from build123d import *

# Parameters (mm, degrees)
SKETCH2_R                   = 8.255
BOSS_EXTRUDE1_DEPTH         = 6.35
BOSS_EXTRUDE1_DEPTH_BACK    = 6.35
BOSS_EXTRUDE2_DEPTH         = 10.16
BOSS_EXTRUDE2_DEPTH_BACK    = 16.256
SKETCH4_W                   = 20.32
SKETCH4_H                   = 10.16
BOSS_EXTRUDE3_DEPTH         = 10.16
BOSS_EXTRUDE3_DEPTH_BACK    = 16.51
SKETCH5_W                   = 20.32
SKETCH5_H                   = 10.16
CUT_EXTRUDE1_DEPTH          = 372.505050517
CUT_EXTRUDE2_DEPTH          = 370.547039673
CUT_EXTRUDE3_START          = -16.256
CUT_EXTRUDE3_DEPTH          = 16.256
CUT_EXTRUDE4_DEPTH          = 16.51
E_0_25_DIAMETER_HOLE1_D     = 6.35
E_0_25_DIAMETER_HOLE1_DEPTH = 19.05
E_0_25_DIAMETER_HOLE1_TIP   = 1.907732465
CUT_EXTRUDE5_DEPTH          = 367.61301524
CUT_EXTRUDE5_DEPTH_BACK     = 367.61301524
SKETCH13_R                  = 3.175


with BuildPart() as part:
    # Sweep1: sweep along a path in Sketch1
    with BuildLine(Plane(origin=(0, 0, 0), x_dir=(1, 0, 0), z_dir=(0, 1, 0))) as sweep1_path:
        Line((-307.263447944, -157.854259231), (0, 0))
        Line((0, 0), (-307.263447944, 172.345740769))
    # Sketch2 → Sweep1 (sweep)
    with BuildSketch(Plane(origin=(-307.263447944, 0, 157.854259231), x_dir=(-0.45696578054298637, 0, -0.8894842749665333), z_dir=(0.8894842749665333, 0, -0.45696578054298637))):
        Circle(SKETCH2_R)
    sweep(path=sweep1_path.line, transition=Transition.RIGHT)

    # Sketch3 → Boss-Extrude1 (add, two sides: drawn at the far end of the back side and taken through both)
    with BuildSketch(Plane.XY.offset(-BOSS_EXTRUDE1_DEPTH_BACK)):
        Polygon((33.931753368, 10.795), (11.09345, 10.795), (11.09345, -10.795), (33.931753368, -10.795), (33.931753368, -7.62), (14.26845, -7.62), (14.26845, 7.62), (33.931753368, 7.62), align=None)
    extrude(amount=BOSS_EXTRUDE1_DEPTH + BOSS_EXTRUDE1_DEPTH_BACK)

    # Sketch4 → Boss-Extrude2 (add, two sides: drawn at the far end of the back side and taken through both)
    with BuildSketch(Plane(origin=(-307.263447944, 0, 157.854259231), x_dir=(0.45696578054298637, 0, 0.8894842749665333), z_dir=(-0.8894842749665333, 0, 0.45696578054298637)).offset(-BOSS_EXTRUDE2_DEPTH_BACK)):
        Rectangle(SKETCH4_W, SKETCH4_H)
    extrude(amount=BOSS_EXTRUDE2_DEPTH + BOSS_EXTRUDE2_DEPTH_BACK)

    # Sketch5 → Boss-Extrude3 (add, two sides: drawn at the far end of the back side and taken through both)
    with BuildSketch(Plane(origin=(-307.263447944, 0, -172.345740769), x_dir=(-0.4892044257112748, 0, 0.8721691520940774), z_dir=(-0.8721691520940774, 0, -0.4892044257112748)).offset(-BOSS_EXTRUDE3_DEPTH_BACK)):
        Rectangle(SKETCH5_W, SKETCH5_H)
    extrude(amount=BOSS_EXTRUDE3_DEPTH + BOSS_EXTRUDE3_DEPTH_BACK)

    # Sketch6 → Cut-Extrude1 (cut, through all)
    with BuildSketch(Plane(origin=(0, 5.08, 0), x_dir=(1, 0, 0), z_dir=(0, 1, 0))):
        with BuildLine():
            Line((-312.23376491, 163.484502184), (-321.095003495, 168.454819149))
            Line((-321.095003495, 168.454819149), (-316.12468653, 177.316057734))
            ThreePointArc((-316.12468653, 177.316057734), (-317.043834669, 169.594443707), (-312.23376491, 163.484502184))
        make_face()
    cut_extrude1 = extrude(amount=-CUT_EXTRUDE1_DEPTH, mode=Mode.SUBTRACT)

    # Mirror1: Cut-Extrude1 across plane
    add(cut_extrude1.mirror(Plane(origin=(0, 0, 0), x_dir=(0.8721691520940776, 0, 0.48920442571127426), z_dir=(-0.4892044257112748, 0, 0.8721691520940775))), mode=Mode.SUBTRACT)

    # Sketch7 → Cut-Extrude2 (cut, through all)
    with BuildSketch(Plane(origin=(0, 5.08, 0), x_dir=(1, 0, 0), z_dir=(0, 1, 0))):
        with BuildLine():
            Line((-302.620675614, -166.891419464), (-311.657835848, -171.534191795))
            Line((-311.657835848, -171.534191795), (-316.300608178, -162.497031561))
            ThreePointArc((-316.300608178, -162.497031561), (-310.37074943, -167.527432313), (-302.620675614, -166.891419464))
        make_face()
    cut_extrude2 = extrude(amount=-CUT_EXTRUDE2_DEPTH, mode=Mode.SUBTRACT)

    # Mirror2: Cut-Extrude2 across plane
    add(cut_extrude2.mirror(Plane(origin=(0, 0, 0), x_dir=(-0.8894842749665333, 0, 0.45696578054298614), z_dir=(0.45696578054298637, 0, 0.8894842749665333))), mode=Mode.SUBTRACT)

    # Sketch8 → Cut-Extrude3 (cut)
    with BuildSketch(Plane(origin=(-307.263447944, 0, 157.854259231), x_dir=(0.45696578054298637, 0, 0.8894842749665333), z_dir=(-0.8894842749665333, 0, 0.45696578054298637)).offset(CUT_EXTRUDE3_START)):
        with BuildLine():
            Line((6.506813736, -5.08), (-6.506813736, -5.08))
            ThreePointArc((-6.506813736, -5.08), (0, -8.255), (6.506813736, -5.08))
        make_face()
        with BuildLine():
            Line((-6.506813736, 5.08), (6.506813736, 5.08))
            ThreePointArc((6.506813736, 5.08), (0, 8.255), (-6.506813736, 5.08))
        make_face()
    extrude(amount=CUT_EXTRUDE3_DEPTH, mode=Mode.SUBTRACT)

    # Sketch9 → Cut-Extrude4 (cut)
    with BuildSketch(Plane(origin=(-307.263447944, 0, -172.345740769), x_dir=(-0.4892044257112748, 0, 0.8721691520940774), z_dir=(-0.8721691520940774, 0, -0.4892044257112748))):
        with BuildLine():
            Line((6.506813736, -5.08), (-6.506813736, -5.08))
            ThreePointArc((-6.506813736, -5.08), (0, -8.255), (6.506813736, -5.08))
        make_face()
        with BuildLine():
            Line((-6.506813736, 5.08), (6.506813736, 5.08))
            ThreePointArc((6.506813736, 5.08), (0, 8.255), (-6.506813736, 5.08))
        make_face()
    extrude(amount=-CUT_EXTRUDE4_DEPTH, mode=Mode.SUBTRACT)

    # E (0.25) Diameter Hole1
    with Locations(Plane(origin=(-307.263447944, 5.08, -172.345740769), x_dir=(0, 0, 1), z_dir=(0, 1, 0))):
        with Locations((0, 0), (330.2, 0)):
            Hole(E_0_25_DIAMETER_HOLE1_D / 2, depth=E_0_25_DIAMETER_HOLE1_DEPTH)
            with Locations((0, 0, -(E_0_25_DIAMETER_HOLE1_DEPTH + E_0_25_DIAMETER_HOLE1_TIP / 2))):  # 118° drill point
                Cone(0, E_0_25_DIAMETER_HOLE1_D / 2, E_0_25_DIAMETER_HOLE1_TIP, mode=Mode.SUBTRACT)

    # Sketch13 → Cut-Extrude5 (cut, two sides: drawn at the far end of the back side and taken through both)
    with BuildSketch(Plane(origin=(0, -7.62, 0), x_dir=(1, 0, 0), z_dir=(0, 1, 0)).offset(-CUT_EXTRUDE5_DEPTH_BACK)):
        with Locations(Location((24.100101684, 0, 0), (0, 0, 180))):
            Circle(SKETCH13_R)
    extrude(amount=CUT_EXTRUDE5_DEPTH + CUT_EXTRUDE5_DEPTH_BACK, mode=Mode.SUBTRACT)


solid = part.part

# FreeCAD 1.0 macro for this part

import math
import FreeCAD as App
import Part
import Sketcher

V = App.Vector
Q = App.Units.Quantity


def add_polygon(sketch, points):
    """Adds a closed chain of lines whose ends are joined by coincident constraints."""
    first, n = sketch.GeometryCount, len(points)
    for a, b in zip(points, points[1:] + points[:1]):
        sketch.addGeometry(Part.LineSegment(App.Vector(*a, 0), App.Vector(*b, 0)), False)
    for i in range(n):
        sketch.addConstraint(Sketcher.Constraint("Coincident", first + i, 2, first + (i + 1) % n, 1))

doc = App.newDocument("Part")
body = doc.addObject("PartDesign::Body", "Body")

sketch1 = body.newObject("Sketcher::SketchObject", "Sketch")
sketch1.Placement = App.Placement(V(-307.263448, 0, 157.854259), App.Rotation(V(-0.456965781, 0, -0.889484275), V(0, 1, 0), V(0.889484275, 0, -0.456965781), "ZXY"))
sketch1.addGeometry(Part.Circle(V(0, 0, 0), V(0, 0, 1), 8.255), False)
sketch1.addConstraint(Sketcher.Constraint("Coincident", 0, 3, -1, 1))
sketch1.addConstraint(Sketcher.Constraint("Diameter", 0, Q("0.65 in")))

sketch2 = body.newObject("Sketcher::SketchObject", "Sketch001")
sketch2.AttachmentSupport = (doc.getObject("XZ_Plane"), [""])
sketch2.MapMode = "FlatFace"
sketch2.addGeometry(Part.LineSegment(V(-307.263448, 157.854259, 0), V(0, 0, 0)), False)
sketch2.addGeometry(Part.LineSegment(V(0, 0, 0), V(-307.263448, -172.345741, 0)), False)
sketch2.addConstraint(Sketcher.Constraint("Coincident", 0, 2, 1, 1))
sketch2.addConstraint(Sketcher.Constraint("Coincident", 0, 2, -1, 1))
sketch2.addConstraint(Sketcher.Constraint("Vertical", 0, 1, 1, 2))
sketch2.addConstraint(Sketcher.Constraint("DistanceY", 1, 2, 0, 1, Q("13 in")))
sketch2.addConstraint(Sketcher.Constraint("Distance", 0, Q("13.6 in")))
sketch2.addConstraint(Sketcher.Constraint("Distance", 1, Q("13.87 in")))
doc.recompute()

additivepipe = body.newObject("PartDesign::AdditivePipe", "AdditivePipe")
additivepipe.Profile = sketch1
additivepipe.Spine = (sketch2, ["Edge1", "Edge2"])
additivepipe.Transition = "Right corner"

sketch3 = body.newObject("Sketcher::SketchObject", "Sketch002")
sketch3.AttachmentSupport = (doc.getObject("XY_Plane"), [""])
sketch3.MapMode = "FlatFace"
add_polygon(sketch3, [(33.931753, 10.795), (11.09345, 10.795), (11.09345, -10.795), (33.931753, -10.795), (33.931753, -7.62), (14.26845, -7.62), (14.26845, 7.62), (33.931753, 7.62)])
sketch3.addConstraint(Sketcher.Constraint("Horizontal", 0))
sketch3.addConstraint(Sketcher.Constraint("Vertical", 1))
sketch3.addConstraint(Sketcher.Constraint("Horizontal", 2))
sketch3.addConstraint(Sketcher.Constraint("Vertical", 3))
sketch3.addConstraint(Sketcher.Constraint("Horizontal", 4))
sketch3.addConstraint(Sketcher.Constraint("Vertical", 5))
sketch3.addConstraint(Sketcher.Constraint("Horizontal", 6))
sketch3.addConstraint(Sketcher.Constraint("Vertical", 7))
sketch3.addConstraint(Sketcher.Constraint("Symmetric", 3, 2, 6, 2, -1))
sketch3.addConstraint(Sketcher.Constraint("Equal", 3, 7))
sketch3.addConstraint(Sketcher.Constraint("DistanceY", 5, 1, 5, 2, Q("0.6 in")))
sketch3.addConstraint(Sketcher.Constraint("DistanceY", 1, 2, 1, 1, Q("0.85 in")))
sketch3.addConstraint(Sketcher.Constraint("DistanceX", 1, 2, 4, 2, Q("0.125 in")))
sketch3.addConstraint(Sketcher.Constraint("DistanceX", 0, 2, 0, 1, 22.838303))
sketch3.addConstraint(Sketcher.Constraint("DistanceX", -1, 1, 0, 2, 11.09345))
pad1 = body.newObject("PartDesign::Pad", "Pad")
pad1.Profile = sketch3
pad1.Type = "TwoLengths"
pad1.Length = Q("0.25 in")
pad1.Length2 = Q("0.25 in")

sketch4 = body.newObject("Sketcher::SketchObject", "Sketch003")
sketch4.Placement = App.Placement(V(-307.263448, 0, 157.854259), App.Rotation(V(0.456965781, 0, 0.889484275), V(0, 1, 0), V(-0.889484275, 0, 0.456965781), "ZXY"))
add_polygon(sketch4, [(-10.16, 5.08), (-10.16, -5.08), (10.16, -5.08), (10.16, 5.08)])
sketch4.addConstraint(Sketcher.Constraint("Vertical", 0))
sketch4.addConstraint(Sketcher.Constraint("Horizontal", 1))
sketch4.addConstraint(Sketcher.Constraint("Vertical", 2))
sketch4.addConstraint(Sketcher.Constraint("Horizontal", 3))
sketch4.addConstraint(Sketcher.Constraint("Symmetric", 0, 2, 2, 2, -1, 1))
sketch4.addConstraint(Sketcher.Constraint("DistanceX", 1, 1, 1, 2, Q("0.8 in")))
sketch4.addConstraint(Sketcher.Constraint("DistanceY", 0, 2, 0, 1, Q("0.4 in")))
pad2 = body.newObject("PartDesign::Pad", "Pad001")
pad2.Profile = sketch4
pad2.Type = "TwoLengths"
pad2.Length = Q("0.4 in")
pad2.Length2 = Q("0.64 in")

sketch5 = body.newObject("Sketcher::SketchObject", "Sketch004")
sketch5.Placement = App.Placement(V(-307.263448, 0, -172.345741), App.Rotation(V(-0.489204426, 0, 0.872169152), V(0, 1, 0), V(-0.872169152, 0, -0.489204426), "ZXY"))
add_polygon(sketch5, [(-10.16, 5.08), (-10.16, -5.08), (10.16, -5.08), (10.16, 5.08)])
sketch5.addConstraint(Sketcher.Constraint("Vertical", 0))
sketch5.addConstraint(Sketcher.Constraint("Horizontal", 1))
sketch5.addConstraint(Sketcher.Constraint("Vertical", 2))
sketch5.addConstraint(Sketcher.Constraint("Horizontal", 3))
sketch5.addConstraint(Sketcher.Constraint("Symmetric", 0, 2, 2, 2, -1, 1))
sketch5.addConstraint(Sketcher.Constraint("DistanceX", 1, 1, 1, 2, Q("0.8 in")))
sketch5.addConstraint(Sketcher.Constraint("DistanceY", 0, 2, 0, 1, Q("0.4 in")))
pad3 = body.newObject("PartDesign::Pad", "Pad002")
pad3.Profile = sketch5
pad3.Type = "TwoLengths"
pad3.Length = Q("0.4 in")
pad3.Length2 = Q("0.65 in")

sketch6 = body.newObject("Sketcher::SketchObject", "Sketch005")
sketch6.AttachmentSupport = (doc.getObject("XZ_Plane"), [""])
sketch6.MapMode = "FlatFace"
sketch6.AttachmentOffset = App.Placement(V(0, 0, -0.2 * 25.4), App.Rotation())
sketch6.addGeometry(Part.LineSegment(V(-321.095003, -168.454819, 0), V(-312.233765, -163.484502, 0)), False)
sketch6.addGeometry(Part.ArcOfCircle(Part.Circle(V(-307.263448, -172.345741, 0), V(0, 0, 1), 10.16), math.radians(119.288304), math.radians(209.288304)), False)
sketch6.addGeometry(Part.LineSegment(V(-316.124687, -177.316058, 0), V(-321.095003, -168.454819, 0)), False)
sketch6.addConstraint(Sketcher.Constraint("Tangent", 0, 2, 1, 1))
sketch6.addConstraint(Sketcher.Constraint("Tangent", 1, 2, 2, 1))
sketch6.addConstraint(Sketcher.Constraint("Coincident", 2, 2, 0, 1))
sketch6.addConstraint(Sketcher.Constraint("Perpendicular", 0, 2))
sketch6.addConstraint(Sketcher.Constraint("Radius", 1, Q("0.4 in")))
sketch6.addConstraint(Sketcher.Constraint("DistanceY", 1, 3, -1, 1, 172.345741))
sketch6.addConstraint(Sketcher.Constraint("DistanceY", 2, 2, -1, 1, 168.454819))
sketch6.addConstraint(Sketcher.Constraint("DistanceX", 1, 3, -1, 1, 307.263448))
pocket1 = body.newObject("PartDesign::Pocket", "Pocket")
pocket1.Profile = sketch6
pocket1.Type = "ThroughAll"
pocket1.Reversed = True
doc.recompute()

datumplane = body.newObject("PartDesign::Plane", "DatumPlane")
datumplane.Placement = App.Placement(V(0, 0, 0), App.Rotation(V(-0.872169152, 0, -0.489204426), V(0, -1, 0), V(-0.489204426, 0, 0.872169152), "ZXY"))
mirrored = body.newObject("PartDesign::Mirrored", "Mirrored")
mirrored.Originals = [pocket1]
mirrored.MirrorPlane = (datumplane, [""])
body.Tip = mirrored

sketch7 = body.newObject("Sketcher::SketchObject", "Sketch006")
sketch7.AttachmentSupport = (doc.getObject("XZ_Plane"), [""])
sketch7.MapMode = "FlatFace"
sketch7.AttachmentOffset = App.Placement(V(0, 0, -0.2 * 25.4), App.Rotation())
sketch7.addGeometry(Part.LineSegment(V(-311.657836, 171.534192, 0), V(-302.620676, 166.891419, 0)), False)
sketch7.addGeometry(Part.ArcOfCircle(Part.Circle(V(-307.263448, 157.854259, 0), V(0, 0, 1), 10.16), math.radians(62.808512), math.radians(152.808512)), False)
sketch7.addGeometry(Part.LineSegment(V(-316.300608, 162.497032, 0), V(-311.657836, 171.534192, 0)), False)
sketch7.addConstraint(Sketcher.Constraint("Tangent", 0, 2, 1, 1))
sketch7.addConstraint(Sketcher.Constraint("Tangent", 1, 2, 2, 1))
sketch7.addConstraint(Sketcher.Constraint("Coincident", 2, 2, 0, 1))
sketch7.addConstraint(Sketcher.Constraint("Perpendicular", 0, 2))
sketch7.addConstraint(Sketcher.Constraint("Radius", 1, Q("0.4 in")))
sketch7.addConstraint(Sketcher.Constraint("DistanceX", 0, 2, -1, 1, Q("11.9141998 in")))
sketch7.addConstraint(Sketcher.Constraint("DistanceY", -1, 1, 1, 3, 157.854259))
sketch7.addConstraint(Sketcher.Constraint("DistanceY", -1, 1, 0, 2, 166.891419))
pocket2 = body.newObject("PartDesign::Pocket", "Pocket001")
pocket2.Profile = sketch7
pocket2.Type = "ThroughAll"
pocket2.Reversed = True
doc.recompute()

datumplane2 = body.newObject("PartDesign::Plane", "DatumPlane001")
datumplane2.Placement = App.Placement(V(0, 0, 0), App.Rotation(V(-0.889484275, 0, 0.456965781), V(0, -1, 0), V(0.456965781, 0, 0.889484275), "ZXY"))
mirrored2 = body.newObject("PartDesign::Mirrored", "Mirrored001")
mirrored2.Originals = [pocket2]
mirrored2.MirrorPlane = (datumplane2, [""])
body.Tip = mirrored2

sketch8 = body.newObject("Sketcher::SketchObject", "Sketch007")
sketch8.Placement = App.Placement(V(-292.803992, 0, 150.425824), App.Rotation(V(0.456965781, 0, 0.889484275), V(0, 1, 0), V(-0.889484275, 0, 0.456965781), "ZXY"))
sketch8.addGeometry(Part.LineSegment(V(6.506814, -5.08, 0), V(-6.506814, -5.08, 0)), False)
sketch8.addGeometry(Part.ArcOfCircle(Part.Circle(V(0, 0, 0), V(0, 0, 1), 8.255), math.radians(-142.020128), math.radians(-37.979872)), False)
sketch8.addGeometry(Part.LineSegment(V(-6.506814, 5.08, 0), V(6.506814, 5.08, 0)), False)
sketch8.addGeometry(Part.ArcOfCircle(Part.Circle(V(0, 0, 0), V(0, 0, 1), 8.255), math.radians(37.979872), math.radians(142.020128)), False)
sketch8.addConstraint(Sketcher.Constraint("Coincident", 0, 1, 1, 2))
sketch8.addConstraint(Sketcher.Constraint("Coincident", 1, 1, 0, 2))
sketch8.addConstraint(Sketcher.Constraint("Coincident", 2, 1, 3, 2))
sketch8.addConstraint(Sketcher.Constraint("Coincident", 3, 1, 2, 2))
sketch8.addConstraint(Sketcher.Constraint("Horizontal", 0))
sketch8.addConstraint(Sketcher.Constraint("Horizontal", 2))
sketch8.addConstraint(Sketcher.Constraint("Coincident", 1, 3, -1, 1))
sketch8.addConstraint(Sketcher.Constraint("Coincident", 3, 3, -1, 1))
sketch8.addConstraint(Sketcher.Constraint("Equal", 1, 3))
sketch8.addConstraint(Sketcher.Constraint("Vertical", 1, 1, 2, 1))
sketch8.addConstraint(Sketcher.Constraint("Radius", 1, Q("0.325 in")))
sketch8.addConstraint(Sketcher.Constraint("DistanceY", 0, 1, -1, 1, Q("0.2 in")))
pocket3 = body.newObject("PartDesign::Pocket", "Pocket002")
pocket3.Profile = sketch8
pocket3.Length = Q("0.64 in")
pocket3.Reversed = True

sketch9 = body.newObject("Sketcher::SketchObject", "Sketch008")
sketch9.Placement = App.Placement(V(-307.263448, 0, -172.345741), App.Rotation(V(-0.489204426, 0, 0.872169152), V(0, 1, 0), V(-0.872169152, 0, -0.489204426), "ZXY"))
sketch9.addGeometry(Part.LineSegment(V(6.506814, -5.08, 0), V(-6.506814, -5.08, 0)), False)
sketch9.addGeometry(Part.ArcOfCircle(Part.Circle(V(0, 0, 0), V(0, 0, 1), 8.255), math.radians(-142.020128), math.radians(-37.979872)), False)
sketch9.addGeometry(Part.LineSegment(V(-6.506814, 5.08, 0), V(6.506814, 5.08, 0)), False)
sketch9.addGeometry(Part.ArcOfCircle(Part.Circle(V(0, 0, 0), V(0, 0, 1), 8.255), math.radians(37.979872), math.radians(142.020128)), False)
sketch9.addConstraint(Sketcher.Constraint("Coincident", 0, 1, 1, 2))
sketch9.addConstraint(Sketcher.Constraint("Coincident", 1, 1, 0, 2))
sketch9.addConstraint(Sketcher.Constraint("Coincident", 2, 1, 3, 2))
sketch9.addConstraint(Sketcher.Constraint("Coincident", 3, 1, 2, 2))
sketch9.addConstraint(Sketcher.Constraint("Horizontal", 0))
sketch9.addConstraint(Sketcher.Constraint("Horizontal", 2))
sketch9.addConstraint(Sketcher.Constraint("Coincident", 1, 3, -1, 1))
sketch9.addConstraint(Sketcher.Constraint("Coincident", 3, 3, -1, 1))
sketch9.addConstraint(Sketcher.Constraint("Equal", 1, 3))
sketch9.addConstraint(Sketcher.Constraint("Vertical", 1, 1, 2, 1))
sketch9.addConstraint(Sketcher.Constraint("Radius", 1, Q("0.325 in")))
sketch9.addConstraint(Sketcher.Constraint("DistanceY", 0, 1, -1, 1, Q("0.2 in")))
pocket4 = body.newObject("PartDesign::Pocket", "Pocket003")
pocket4.Profile = sketch9
pocket4.Length = Q("0.65 in")

sketch10 = body.newObject("Sketcher::SketchObject", "Sketch009")
sketch10.AttachmentSupport = (doc.getObject("XZ_Plane"), [""])
sketch10.MapMode = "FlatFace"
sketch10.AttachmentOffset = App.Placement(V(0, 0, -0.2 * 25.4), App.Rotation())
sketch10.addGeometry(Part.Circle(V(-307.263448, -172.345741, 0), V(0, 0, 1), 3.175), False)
sketch10.addGeometry(Part.Circle(V(-307.263448, 157.854259, 0), V(0, 0, 1), 3.175), False)
sketch10.addConstraint(Sketcher.Constraint("Equal", 0, 1))
sketch10.addConstraint(Sketcher.Constraint("Vertical", 0, 3, 1, 3))
sketch10.addConstraint(Sketcher.Constraint("Diameter", 0, Q("0.25 in")))
sketch10.addConstraint(Sketcher.Constraint("DistanceY", 0, 3, 1, 3, Q("13 in")))
sketch10.addConstraint(Sketcher.Constraint("DistanceY", 0, 3, -1, 1, 172.345741))
sketch10.addConstraint(Sketcher.Constraint("DistanceX", 0, 3, -1, 1, 307.263448))
doc.recompute()
hole = body.newObject("PartDesign::Hole", "Hole")
hole.Profile = sketch10
hole.ThreadType = "None"
hole.Diameter = Q("0.25 in")
hole.DepthType = "Dimension"
hole.Depth = Q("0.75 in")
hole.DrillPoint = "Angled"
hole.DrillPointAngle = 118
hole.Reversed = True

sketch11 = body.newObject("Sketcher::SketchObject", "Sketch010")
sketch11.AttachmentSupport = (doc.getObject("XZ_Plane"), [""])
sketch11.MapMode = "FlatFace"
sketch11.AttachmentOffset = App.Placement(V(0, 0, 0.3 * 25.4), App.Rotation())
sketch11.addGeometry(Part.Circle(V(24.100102, 0, 0), V(0, 0, 1), 3.175), False)
sketch11.addConstraint(Sketcher.Constraint("PointOnObject", 0, 3, -1))
sketch11.addConstraint(Sketcher.Constraint("Diameter", 0, Q("0.25 in")))
sketch11.addConstraint(Sketcher.Constraint("DistanceX", -1, 1, 0, 3, 24.100102))
pocket5 = body.newObject("PartDesign::Pocket", "Pocket004")
pocket5.Profile = sketch11
pocket5.Type = "ThroughAll"
pocket5.Midplane = True

doc.recompute()
